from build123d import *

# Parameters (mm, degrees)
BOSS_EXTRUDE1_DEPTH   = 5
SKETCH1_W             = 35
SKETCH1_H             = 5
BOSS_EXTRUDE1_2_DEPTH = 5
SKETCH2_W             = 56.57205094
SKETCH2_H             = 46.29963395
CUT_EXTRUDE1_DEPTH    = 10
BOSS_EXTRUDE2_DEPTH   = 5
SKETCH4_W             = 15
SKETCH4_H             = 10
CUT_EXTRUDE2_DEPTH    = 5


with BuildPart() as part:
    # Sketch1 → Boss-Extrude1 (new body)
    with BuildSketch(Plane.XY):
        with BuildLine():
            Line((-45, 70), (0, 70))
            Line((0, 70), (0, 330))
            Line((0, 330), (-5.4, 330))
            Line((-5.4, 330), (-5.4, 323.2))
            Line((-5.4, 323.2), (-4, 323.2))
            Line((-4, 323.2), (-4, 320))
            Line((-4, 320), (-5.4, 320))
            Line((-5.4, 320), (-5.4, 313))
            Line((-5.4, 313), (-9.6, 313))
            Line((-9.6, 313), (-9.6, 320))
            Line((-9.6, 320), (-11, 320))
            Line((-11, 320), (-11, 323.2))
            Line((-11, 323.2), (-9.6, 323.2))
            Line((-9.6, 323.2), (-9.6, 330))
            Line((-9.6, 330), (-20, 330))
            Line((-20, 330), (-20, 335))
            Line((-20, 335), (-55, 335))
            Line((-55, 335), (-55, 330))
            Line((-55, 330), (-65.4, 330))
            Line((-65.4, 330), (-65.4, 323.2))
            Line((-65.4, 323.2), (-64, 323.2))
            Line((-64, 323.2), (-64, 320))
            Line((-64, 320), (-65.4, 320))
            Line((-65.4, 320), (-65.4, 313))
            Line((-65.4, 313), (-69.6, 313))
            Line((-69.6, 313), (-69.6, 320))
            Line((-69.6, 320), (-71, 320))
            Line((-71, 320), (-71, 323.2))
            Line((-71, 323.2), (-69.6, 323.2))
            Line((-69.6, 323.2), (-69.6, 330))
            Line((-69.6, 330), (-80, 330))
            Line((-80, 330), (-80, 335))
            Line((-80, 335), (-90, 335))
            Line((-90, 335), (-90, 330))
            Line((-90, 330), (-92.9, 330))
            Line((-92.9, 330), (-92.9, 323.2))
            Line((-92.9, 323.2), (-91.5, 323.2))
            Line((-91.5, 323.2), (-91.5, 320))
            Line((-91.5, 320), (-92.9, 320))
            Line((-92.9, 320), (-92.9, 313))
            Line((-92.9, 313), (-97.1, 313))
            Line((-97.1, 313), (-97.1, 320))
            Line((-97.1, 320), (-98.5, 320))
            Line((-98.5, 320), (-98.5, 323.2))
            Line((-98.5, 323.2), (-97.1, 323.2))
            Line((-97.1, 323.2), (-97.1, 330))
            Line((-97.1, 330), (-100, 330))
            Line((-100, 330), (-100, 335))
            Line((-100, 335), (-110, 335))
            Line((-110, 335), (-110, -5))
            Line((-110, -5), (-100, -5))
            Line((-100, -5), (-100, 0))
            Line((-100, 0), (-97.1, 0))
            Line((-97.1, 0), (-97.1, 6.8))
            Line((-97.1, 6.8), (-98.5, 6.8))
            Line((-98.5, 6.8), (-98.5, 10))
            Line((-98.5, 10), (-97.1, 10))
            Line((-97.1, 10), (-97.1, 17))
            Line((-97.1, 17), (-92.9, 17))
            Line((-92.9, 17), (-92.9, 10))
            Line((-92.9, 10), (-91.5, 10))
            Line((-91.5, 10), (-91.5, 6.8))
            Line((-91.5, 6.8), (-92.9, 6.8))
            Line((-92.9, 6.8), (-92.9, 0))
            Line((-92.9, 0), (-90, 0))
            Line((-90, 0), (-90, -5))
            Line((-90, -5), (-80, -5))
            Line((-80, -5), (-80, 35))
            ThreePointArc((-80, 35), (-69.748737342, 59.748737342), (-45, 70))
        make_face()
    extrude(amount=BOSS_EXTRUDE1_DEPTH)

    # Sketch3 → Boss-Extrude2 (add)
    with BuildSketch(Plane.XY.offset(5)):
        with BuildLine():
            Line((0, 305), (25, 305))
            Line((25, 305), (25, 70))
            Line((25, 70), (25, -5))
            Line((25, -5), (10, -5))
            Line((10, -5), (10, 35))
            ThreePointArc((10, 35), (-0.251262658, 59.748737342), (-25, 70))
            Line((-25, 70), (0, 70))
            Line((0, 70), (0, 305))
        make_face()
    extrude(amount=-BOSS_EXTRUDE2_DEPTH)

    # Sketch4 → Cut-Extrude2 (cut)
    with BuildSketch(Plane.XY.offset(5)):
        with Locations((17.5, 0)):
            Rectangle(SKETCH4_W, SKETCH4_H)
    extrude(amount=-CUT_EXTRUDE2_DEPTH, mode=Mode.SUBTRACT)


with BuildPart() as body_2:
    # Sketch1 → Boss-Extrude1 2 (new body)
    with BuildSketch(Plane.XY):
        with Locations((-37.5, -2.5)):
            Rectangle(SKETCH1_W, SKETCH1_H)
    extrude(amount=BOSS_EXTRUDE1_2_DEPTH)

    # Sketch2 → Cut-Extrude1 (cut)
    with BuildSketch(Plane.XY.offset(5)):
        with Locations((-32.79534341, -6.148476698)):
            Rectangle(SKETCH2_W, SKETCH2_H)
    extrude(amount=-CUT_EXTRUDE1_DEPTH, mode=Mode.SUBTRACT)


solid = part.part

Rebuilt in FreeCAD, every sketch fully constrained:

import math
import FreeCAD as App
import Part
import Sketcher
Q = App.Units.Quantity

doc = App.newDocument("Part")
body = doc.addObject("PartDesign::Body", "Body")

sketch1 = doc.addObject("Sketcher::SketchObject", "Sketch")
body.addObject(sketch1)
sketch1.AttachmentSupport = (doc.XY_Plane, [""])
sketch1.MapMode = "FlatFace"
sketch1.addGeometry(Part.LineSegment(App.Vector(-45, 70, 0), App.Vector(0, 70, 0)), False)
sketch1.addGeometry(Part.LineSegment(App.Vector(0, 70, 0), App.Vector(0, 330, 0)), False)
sketch1.addGeometry(Part.LineSegment(App.Vector(0, 330, 0), App.Vector(-5.4, 330, 0)), False)
sketch1.addGeometry(Part.LineSegment(App.Vector(-5.4, 330, 0), App.Vector(-5.4, 323.2, 0)), False)
sketch1.addGeometry(Part.LineSegment(App.Vector(-5.4, 323.2, 0), App.Vector(-4, 323.2, 0)), False)
sketch1.addGeometry(Part.LineSegment(App.Vector(-4, 323.2, 0), App.Vector(-4, 320, 0)), False)
sketch1.addGeometry(Part.LineSegment(App.Vector(-4, 320, 0), App.Vector(-5.4, 320, 0)), False)
sketch1.addGeometry(Part.LineSegment(App.Vector(-5.4, 320, 0), App.Vector(-5.4, 313, 0)), False)
sketch1.addGeometry(Part.LineSegment(App.Vector(-5.4, 313, 0), App.Vector(-9.6, 313, 0)), False)
sketch1.addGeometry(Part.LineSegment(App.Vector(-9.6, 313, 0), App.Vector(-9.6, 320, 0)), False)
sketch1.addGeometry(Part.LineSegment(App.Vector(-9.6, 320, 0), App.Vector(-11, 320, 0)), False)
sketch1.addGeometry(Part.LineSegment(App.Vector(-11, 320, 0), App.Vector(-11, 323.2, 0)), False)
sketch1.addGeometry(Part.LineSegment(App.Vector(-11, 323.2, 0), App.Vector(-9.6, 323.2, 0)), False)
sketch1.addGeometry(Part.LineSegment(App.Vector(-9.6, 323.2, 0), App.Vector(-9.6, 330, 0)), False)
sketch1.addGeometry(Part.LineSegment(App.Vector(-9.6, 330, 0), App.Vector(-20, 330, 0)), False)
sketch1.addGeometry(Part.LineSegment(App.Vector(-20, 330, 0), App.Vector(-20, 335, 0)), False)
sketch1.addGeometry(Part.LineSegment(App.Vector(-20, 335, 0), App.Vector(-55, 335, 0)), False)
sketch1.addGeometry(Part.LineSegment(App.Vector(-55, 335, 0), App.Vector(-55, 330, 0)), False)
sketch1.addGeometry(Part.LineSegment(App.Vector(-55, 330, 0), App.Vector(-65.4, 330, 0)), False)
sketch1.addGeometry(Part.LineSegment(App.Vector(-65.4, 330, 0), App.Vector(-65.4, 323.2, 0)), False)
sketch1.addGeometry(Part.LineSegment(App.Vector(-65.4, 323.2, 0), App.Vector(-64, 323.2, 0)), False)
sketch1.addGeometry(Part.LineSegment(App.Vector(-64, 323.2, 0), App.Vector(-64, 320, 0)), False)
sketch1.addGeometry(Part.LineSegment(App.Vector(-64, 320, 0), App.Vector(-65.4, 320, 0)), False)
sketch1.addGeometry(Part.LineSegment(App.Vector(-65.4, 320, 0), App.Vector(-65.4, 313, 0)), False)
sketch1.addGeometry(Part.LineSegment(App.Vector(-65.4, 313, 0), App.Vector(-69.6, 313, 0)), False)
sketch1.addGeometry(Part.LineSegment(App.Vector(-69.6, 313, 0), App.Vector(-69.6, 320, 0)), False)
sketch1.addGeometry(Part.LineSegment(App.Vector(-69.6, 320, 0), App.Vector(-71, 320, 0)), False)
sketch1.addGeometry(Part.LineSegment(App.Vector(-71, 320, 0), App.Vector(-71, 323.2, 0)), False)
sketch1.addGeometry(Part.LineSegment(App.Vector(-71, 323.2, 0), App.Vector(-69.6, 323.2, 0)), False)
sketch1.addGeometry(Part.LineSegment(App.Vector(-69.6, 323.2, 0), App.Vector(-69.6, 330, 0)), False)
sketch1.addGeometry(Part.LineSegment(App.Vector(-69.6, 330, 0), App.Vector(-80, 330, 0)), False)
sketch1.addGeometry(Part.LineSegment(App.Vector(-80, 330, 0), App.Vector(-80, 335, 0)), False)
sketch1.addGeometry(Part.LineSegment(App.Vector(-80, 335, 0), App.Vector(-90, 335, 0)), False)
sketch1.addGeometry(Part.LineSegment(App.Vector(-90, 335, 0), App.Vector(-90, 330, 0)), False)
sketch1.addGeometry(Part.LineSegment(App.Vector(-90, 330, 0), App.Vector(-92.9, 330, 0)), False)
sketch1.addGeometry(Part.LineSegment(App.Vector(-92.9, 330, 0), App.Vector(-92.9, 323.2, 0)), False)
sketch1.addGeometry(Part.LineSegment(App.Vector(-92.9, 323.2, 0), App.Vector(-91.5, 323.2, 0)), False)
sketch1.addGeometry(Part.LineSegment(App.Vector(-91.5, 323.2, 0), App.Vector(-91.5, 320, 0)), False)
sketch1.addGeometry(Part.LineSegment(App.Vector(-91.5, 320, 0), App.Vector(-92.9, 320, 0)), False)
sketch1.addGeometry(Part.LineSegment(App.Vector(-92.9, 320, 0), App.Vector(-92.9, 313, 0)), False)
sketch1.addGeometry(Part.LineSegment(App.Vector(-92.9, 313, 0), App.Vector(-97.1, 313, 0)), False)
sketch1.addGeometry(Part.LineSegment(App.Vector(-97.1, 313, 0), App.Vector(-97.1, 320, 0)), False)
sketch1.addGeometry(Part.LineSegment(App.Vector(-97.1, 320, 0), App.Vector(-98.5, 320, 0)), False)
sketch1.addGeometry(Part.LineSegment(App.Vector(-98.5, 320, 0), App.Vector(-98.5, 323.2, 0)), False)
sketch1.addGeometry(Part.LineSegment(App.Vector(-98.5, 323.2, 0), App.Vector(-97.1, 323.2, 0)), False)
sketch1.addGeometry(Part.LineSegment(App.Vector(-97.1, 323.2, 0), App.Vector(-97.1, 330, 0)), False)
sketch1.addGeometry(Part.LineSegment(App.Vector(-97.1, 330, 0), App.Vector(-100, 330, 0)), False)
sketch1.addGeometry(Part.LineSegment(App.Vector(-100, 330, 0), App.Vector(-100, 335, 0)), False)
sketch1.addGeometry(Part.LineSegment(App.Vector(-100, 335, 0), App.Vector(-110, 335, 0)), False)
sketch1.addGeometry(Part.LineSegment(App.Vector(-110, 335, 0), App.Vector(-110, -5, 0)), False)
sketch1.addGeometry(Part.LineSegment(App.Vector(-110, -5, 0), App.Vector(-100, -5, 0)), False)
sketch1.addGeometry(Part.LineSegment(App.Vector(-100, -5, 0), App.Vector(-100, 0, 0)), False)
sketch1.addGeometry(Part.LineSegment(App.Vector(-100, 0, 0), App.Vector(-97.1, 0, 0)), False)
sketch1.addGeometry(Part.LineSegment(App.Vector(-97.1, 0, 0), App.Vector(-97.1, 6.8, 0)), False)
sketch1.addGeometry(Part.LineSegment(App.Vector(-97.1, 6.8, 0), App.Vector(-98.5, 6.8, 0)), False)
sketch1.addGeometry(Part.LineSegment(App.Vector(-98.5, 6.8, 0), App.Vector(-98.5, 10, 0)), False)
sketch1.addGeometry(Part.LineSegment(App.Vector(-98.5, 10, 0), App.Vector(-97.1, 10, 0)), False)
sketch1.addGeometry(Part.LineSegment(App.Vector(-97.1, 10, 0), App.Vector(-97.1, 17, 0)), False)
sketch1.addGeometry(Part.LineSegment(App.Vector(-97.1, 17, 0), App.Vector(-92.9, 17, 0)), False)
sketch1.addGeometry(Part.LineSegment(App.Vector(-92.9, 17, 0), App.Vector(-92.9, 10, 0)), False)
sketch1.addGeometry(Part.LineSegment(App.Vector(-92.9, 10, 0), App.Vector(-91.5, 10, 0)), False)
sketch1.addGeometry(Part.LineSegment(App.Vector(-91.5, 10, 0), App.Vector(-91.5, 6.8, 0)), False)
sketch1.addGeometry(Part.LineSegment(App.Vector(-91.5, 6.8, 0), App.Vector(-92.9, 6.8, 0)), False)
sketch1.addGeometry(Part.LineSegment(App.Vector(-92.9, 6.8, 0), App.Vector(-92.9, 0, 0)), False)
sketch1.addGeometry(Part.LineSegment(App.Vector(-92.9, 0, 0), App.Vector(-90, 0, 0)), False)
sketch1.addGeometry(Part.LineSegment(App.Vector(-90, 0, 0), App.Vector(-90, -5, 0)), False)
sketch1.addGeometry(Part.LineSegment(App.Vector(-90, -5, 0), App.Vector(-80, -5, 0)), False)
sketch1.addGeometry(Part.LineSegment(App.Vector(-80, -5, 0), App.Vector(-80, 35, 0)), False)
sketch1.addGeometry(Part.ArcOfCircle(Part.Circle(App.Vector(-45, 35, 0), App.Vector(0, 0, 1), 35), math.radians(90), math.radians(180)), False)
sketch1.addConstraint(Sketcher.Constraint("Coincident", 0, 2, 1, 1))
sketch1.addConstraint(Sketcher.Constraint("Coincident", 1, 2, 2, 1))
sketch1.addConstraint(Sketcher.Constraint("Coincident", 2, 2, 3, 1))
sketch1.addConstraint(Sketcher.Constraint("Coincident", 3, 2, 4, 1))
sketch1.addConstraint(Sketcher.Constraint("Coincident", 4, 2, 5, 1))
sketch1.addConstraint(Sketcher.Constraint("Coincident", 5, 2, 6, 1))
sketch1.addConstraint(Sketcher.Constraint("Coincident", 6, 2, 7, 1))
sketch1.addConstraint(Sketcher.Constraint("Coincident", 7, 2, 8, 1))
sketch1.addConstraint(Sketcher.Constraint("Coincident", 8, 2, 9, 1))
sketch1.addConstraint(Sketcher.Constraint("Coincident", 9, 2, 10, 1))
sketch1.addConstraint(Sketcher.Constraint("Coincident", 10, 2, 11, 1))
sketch1.addConstraint(Sketcher.Constraint("Coincident", 11, 2, 12, 1))
sketch1.addConstraint(Sketcher.Constraint("Coincident", 12, 2, 13, 1))
sketch1.addConstraint(Sketcher.Constraint("Coincident", 13, 2, 14, 1))
sketch1.addConstraint(Sketcher.Constraint("Coincident", 14, 2, 15, 1))
sketch1.addConstraint(Sketcher.Constraint("Coincident", 15, 2, 16, 1))
sketch1.addConstraint(Sketcher.Constraint("Coincident", 16, 2, 17, 1))
sketch1.addConstraint(Sketcher.Constraint("Coincident", 17, 2, 18, 1))
sketch1.addConstraint(Sketcher.Constraint("Coincident", 18, 2, 19, 1))
sketch1.addConstraint(Sketcher.Constraint("Coincident", 19, 2, 20, 1))
sketch1.addConstraint(Sketcher.Constraint("Coincident", 20, 2, 21, 1))
sketch1.addConstraint(Sketcher.Constraint("Coincident", 21, 2, 22, 1))
sketch1.addConstraint(Sketcher.Constraint("Coincident", 22, 2, 23, 1))
sketch1.addConstraint(Sketcher.Constraint("Coincident", 23, 2, 24, 1))
sketch1.addConstraint(Sketcher.Constraint("Coincident", 24, 2, 25, 1))
sketch1.addConstraint(Sketcher.Constraint("Coincident", 25, 2, 26, 1))
sketch1.addConstraint(Sketcher.Constraint("Coincident", 26, 2, 27, 1))
sketch1.addConstraint(Sketcher.Constraint("Coincident", 27, 2, 28, 1))
sketch1.addConstraint(Sketcher.Constraint("Coincident", 28, 2, 29, 1))
sketch1.addConstraint(Sketcher.Constraint("Coincident", 29, 2, 30, 1))
sketch1.addConstraint(Sketcher.Constraint("Coincident", 30, 2, 31, 1))
sketch1.addConstraint(Sketcher.Constraint("Coincident", 31, 2, 32, 1))
sketch1.addConstraint(Sketcher.Constraint("Coincident", 32, 2, 33, 1))
sketch1.addConstraint(Sketcher.Constraint("Coincident", 33, 2, 34, 1))
sketch1.addConstraint(Sketcher.Constraint("Coincident", 34, 2, 35, 1))
sketch1.addConstraint(Sketcher.Constraint("Coincident", 35, 2, 36, 1))
sketch1.addConstraint(Sketcher.Constraint("Coincident", 36, 2, 37, 1))
sketch1.addConstraint(Sketcher.Constraint("Coincident", 37, 2, 38, 1))
sketch1.addConstraint(Sketcher.Constraint("Coincident", 38, 2, 39, 1))
sketch1.addConstraint(Sketcher.Constraint("Coincident", 39, 2, 40, 1))
sketch1.addConstraint(Sketcher.Constraint("Coincident", 40, 2, 41, 1))
sketch1.addConstraint(Sketcher.Constraint("Coincident", 41, 2, 42, 1))
sketch1.addConstraint(Sketcher.Constraint("Coincident", 42, 2, 43, 1))
sketch1.addConstraint(Sketcher.Constraint("Coincident", 43, 2, 44, 1))
sketch1.addConstraint(Sketcher.Constraint("Coincident", 44, 2, 45, 1))
sketch1.addConstraint(Sketcher.Constraint("Coincident", 45, 2, 46, 1))
sketch1.addConstraint(Sketcher.Constraint("Coincident", 46, 2, 47, 1))
sketch1.addConstraint(Sketcher.Constraint("Coincident", 47, 2, 48, 1))
sketch1.addConstraint(Sketcher.Constraint("Coincident", 48, 2, 49, 1))
sketch1.addConstraint(Sketcher.Constraint("Coincident", 49, 2, 50, 1))
sketch1.addConstraint(Sketcher.Constraint("Coincident", 50, 2, 51, 1))
sketch1.addConstraint(Sketcher.Constraint("Coincident", 51, 2, 52, 1))
sketch1.addConstraint(Sketcher.Constraint("Coincident", 52, 2, 53, 1))
sketch1.addConstraint(Sketcher.Constraint("Coincident", 53, 2, 54, 1))
sketch1.addConstraint(Sketcher.Constraint("Coincident", 54, 2, 55, 1))
sketch1.addConstraint(Sketcher.Constraint("Coincident", 55, 2, 56, 1))
sketch1.addConstraint(Sketcher.Constraint("Coincident", 56, 2, 57, 1))
sketch1.addConstraint(Sketcher.Constraint("Coincident", 57, 2, 58, 1))
sketch1.addConstraint(Sketcher.Constraint("Coincident", 58, 2, 59, 1))
sketch1.addConstraint(Sketcher.Constraint("Coincident", 59, 2, 60, 1))
sketch1.addConstraint(Sketcher.Constraint("Coincident", 60, 2, 61, 1))
sketch1.addConstraint(Sketcher.Constraint("Coincident", 61, 2, 62, 1))
sketch1.addConstraint(Sketcher.Constraint("Coincident", 62, 2, 63, 1))
sketch1.addConstraint(Sketcher.Constraint("Coincident", 63, 2, 64, 1))
sketch1.addConstraint(Sketcher.Constraint("Coincident", 64, 2, 65, 1))
sketch1.addConstraint(Sketcher.Constraint("Coincident", 65, 2, 66, 1))
sketch1.addConstraint(Sketcher.Constraint("Coincident", 66, 2, 67, 1))
sketch1.addConstraint(Sketcher.Constraint("Tangent", 67, 2, 68, 2))
sketch1.addConstraint(Sketcher.Constraint("Tangent", 68, 1, 0, 1))
sketch1.addConstraint(Sketcher.Constraint("Horizontal", 0))
sketch1.addConstraint(Sketcher.Constraint("Vertical", 1))
sketch1.addConstraint(Sketcher.Constraint("Horizontal", 2))
sketch1.addConstraint(Sketcher.Constraint("Vertical", 3))
sketch1.addConstraint(Sketcher.Constraint("Horizontal", 4))
sketch1.addConstraint(Sketcher.Constraint("Vertical", 5))
sketch1.addConstraint(Sketcher.Constraint("Horizontal", 6))
sketch1.addConstraint(Sketcher.Constraint("Vertical", 7))
sketch1.addConstraint(Sketcher.Constraint("Horizontal", 8))
sketch1.addConstraint(Sketcher.Constraint("Vertical", 9))
sketch1.addConstraint(Sketcher.Constraint("Horizontal", 10))
sketch1.addConstraint(Sketcher.Constraint("Vertical", 11))
sketch1.addConstraint(Sketcher.Constraint("Horizontal", 12))
sketch1.addConstraint(Sketcher.Constraint("Vertical", 13))
sketch1.addConstraint(Sketcher.Constraint("Horizontal", 14))
sketch1.addConstraint(Sketcher.Constraint("Vertical", 15))
sketch1.addConstraint(Sketcher.Constraint("Horizontal", 16))
sketch1.addConstraint(Sketcher.Constraint("Vertical", 17))
sketch1.addConstraint(Sketcher.Constraint("Horizontal", 18))
sketch1.addConstraint(Sketcher.Constraint("Vertical", 19))
sketch1.addConstraint(Sketcher.Constraint("Horizontal", 20))
sketch1.addConstraint(Sketcher.Constraint("Vertical", 21))
sketch1.addConstraint(Sketcher.Constraint("Horizontal", 22))
sketch1.addConstraint(Sketcher.Constraint("Vertical", 23))
sketch1.addConstraint(Sketcher.Constraint("Horizontal", 24))
sketch1.addConstraint(Sketcher.Constraint("Vertical", 25))
sketch1.addConstraint(Sketcher.Constraint("Horizontal", 26))
sketch1.addConstraint(Sketcher.Constraint("Vertical", 27))
sketch1.addConstraint(Sketcher.Constraint("Horizontal", 28))
sketch1.addConstraint(Sketcher.Constraint("Vertical", 29))
sketch1.addConstraint(Sketcher.Constraint("Horizontal", 30))
sketch1.addConstraint(Sketcher.Constraint("Vertical", 31))
sketch1.addConstraint(Sketcher.Constraint("Horizontal", 32))
sketch1.addConstraint(Sketcher.Constraint("Vertical", 33))
sketch1.addConstraint(Sketcher.Constraint("Horizontal", 34))
sketch1.addConstraint(Sketcher.Constraint("Vertical", 35))
sketch1.addConstraint(Sketcher.Constraint("Horizontal", 36))
sketch1.addConstraint(Sketcher.Constraint("Vertical", 37))
sketch1.addConstraint(Sketcher.Constraint("Horizontal", 38))
sketch1.addConstraint(Sketcher.Constraint("Vertical", 39))
sketch1.addConstraint(Sketcher.Constraint("Horizontal", 40))
sketch1.addConstraint(Sketcher.Constraint("Vertical", 41))
sketch1.addConstraint(Sketcher.Constraint("Horizontal", 42))
sketch1.addConstraint(Sketcher.Constraint("Vertical", 43))
sketch1.addConstraint(Sketcher.Constraint("Horizontal", 44))
sketch1.addConstraint(Sketcher.Constraint("Vertical", 45))
sketch1.addConstraint(Sketcher.Constraint("Horizontal", 46))
sketch1.addConstraint(Sketcher.Constraint("Vertical", 47))
sketch1.addConstraint(Sketcher.Constraint("Horizontal", 48))
sketch1.addConstraint(Sketcher.Constraint("Vertical", 49))
sketch1.addConstraint(Sketcher.Constraint("Horizontal", 50))
sketch1.addConstraint(Sketcher.Constraint("Vertical", 51))
sketch1.addConstraint(Sketcher.Constraint("Horizontal", 52))
sketch1.addConstraint(Sketcher.Constraint("Vertical", 53))
sketch1.addConstraint(Sketcher.Constraint("Horizontal", 54))
sketch1.addConstraint(Sketcher.Constraint("Vertical", 55))
sketch1.addConstraint(Sketcher.Constraint("Horizontal", 56))
sketch1.addConstraint(Sketcher.Constraint("Vertical", 57))
sketch1.addConstraint(Sketcher.Constraint("Horizontal", 58))
sketch1.addConstraint(Sketcher.Constraint("Vertical", 59))
sketch1.addConstraint(Sketcher.Constraint("Horizontal", 60))
sketch1.addConstraint(Sketcher.Constraint("Vertical", 61))
sketch1.addConstraint(Sketcher.Constraint("Horizontal", 62))
sketch1.addConstraint(Sketcher.Constraint("Vertical", 63))
sketch1.addConstraint(Sketcher.Constraint("Horizontal", 64))
sketch1.addConstraint(Sketcher.Constraint("Vertical", 65))
sketch1.addConstraint(Sketcher.Constraint("Horizontal", 66))
sketch1.addConstraint(Sketcher.Constraint("Vertical", 67))
sketch1.addConstraint(Sketcher.Constraint("PointOnObject", 0, 2, -2))
sketch1.addConstraint(Sketcher.Constraint("PointOnObject", 51, 2, -1))
sketch1.addConstraint(Sketcher.Constraint("PointOnObject", 63, 2, -1))
sketch1.addConstraint(Sketcher.Constraint("Horizontal", 6, 2, 9, 2))
sketch1.addConstraint(Sketcher.Constraint("Horizontal", 4, 2, 11, 2))
sketch1.addConstraint(Sketcher.Constraint("Horizontal", 2, 2, 13, 2))
sketch1.addConstraint(Sketcher.Constraint("Horizontal", 14, 2, 17, 2))
sketch1.addConstraint(Sketcher.Constraint("Horizontal", 12, 2, 19, 2))
sketch1.addConstraint(Sketcher.Constraint("Horizontal", 10, 2, 21, 2))
sketch1.addConstraint(Sketcher.Constraint("Horizontal", 8, 2, 23, 2))
sketch1.addConstraint(Sketcher.Constraint("Horizontal", 22, 2, 25, 2))
sketch1.addConstraint(Sketcher.Constraint("Horizontal", 20, 2, 27, 2))
sketch1.addConstraint(Sketcher.Constraint("Horizontal", 18, 2, 29, 2))
sketch1.addConstraint(Sketcher.Constraint("Horizontal", 16, 2, 31, 2))
sketch1.addConstraint(Sketcher.Constraint("Horizontal", 30, 2, 33, 2))
sketch1.addConstraint(Sketcher.Constraint("Horizontal", 28, 2, 35, 2))
sketch1.addConstraint(Sketcher.Constraint("Horizontal", 26, 2, 37, 2))
sketch1.addConstraint(Sketcher.Constraint("Horizontal", 24, 2, 39, 2))
sketch1.addConstraint(Sketcher.Constraint("Horizontal", 38, 2, 41, 2))
sketch1.addConstraint(Sketcher.Constraint("Horizontal", 36, 2, 43, 2))
sketch1.addConstraint(Sketcher.Constraint("Horizontal", 34, 2, 45, 2))
sketch1.addConstraint(Sketcher.Constraint("Horizontal", 32, 2, 47, 2))
sketch1.addConstraint(Sketcher.Constraint("Horizontal", 56, 2, 59, 2))
sketch1.addConstraint(Sketcher.Constraint("Horizontal", 54, 2, 61, 2))
sketch1.addConstraint(Sketcher.Constraint("Horizontal", 50, 2, 65, 2))
sketch1.addConstraint(Sketcher.Constraint("Vertical", 3, 2, 6, 2))
sketch1.addConstraint(Sketcher.Constraint("Vertical", 9, 2, 12, 2))
sketch1.addConstraint(Sketcher.Constraint("Vertical", 19, 2, 22, 2))
sketch1.addConstraint(Sketcher.Constraint("Vertical", 25, 2, 28, 2))
sketch1.addConstraint(Sketcher.Constraint("Vertical", 35, 2, 38, 2))
sketch1.addConstraint(Sketcher.Constraint("Vertical", 41, 2, 44, 2))
sketch1.addConstraint(Sketcher.Constraint("Vertical", 47, 2, 50, 2))
sketch1.addConstraint(Sketcher.Constraint("Vertical", 45, 2, 52, 2))
sketch1.addConstraint(Sketcher.Constraint("Vertical", 43, 2, 54, 2))
sketch1.addConstraint(Sketcher.Constraint("Vertical", 53, 2, 56, 2))
sketch1.addConstraint(Sketcher.Constraint("Vertical", 39, 2, 58, 2))
sketch1.addConstraint(Sketcher.Constraint("Vertical", 37, 2, 60, 2))
sketch1.addConstraint(Sketcher.Constraint("Vertical", 59, 2, 62, 2))
sketch1.addConstraint(Sketcher.Constraint("Vertical", 33, 2, 64, 2))
sketch1.addConstraint(Sketcher.Constraint("Vertical", 31, 2, 66, 2))
sketch1.addConstraint(Sketcher.Constraint("Equal", 6, 10))
sketch1.addConstraint(Sketcher.Constraint("Equal", 14, 18))
sketch1.addConstraint(Sketcher.Constraint("Equal", 12, 20))
sketch1.addConstraint(Sketcher.Constraint("Equal", 8, 24))
sketch1.addConstraint(Sketcher.Constraint("Equal", 22, 26))
sketch1.addConstraint(Sketcher.Constraint("Equal", 18, 30))
sketch1.addConstraint(Sketcher.Constraint("Equal", 28, 36))
sketch1.addConstraint(Sketcher.Constraint("Equal", 24, 40))
sketch1.addConstraint(Sketcher.Constraint("Equal", 38, 42))
sketch1.addConstraint(Sketcher.Constraint("Equal", 34, 46))
sketch1.addConstraint(Sketcher.Constraint("Equal", 32, 48))
sketch1.addConstraint(Sketcher.Constraint("Equal", 47, 51))
sketch1.addConstraint(Sketcher.Constraint("Equal", 45, 53))
sketch1.addConstraint(Sketcher.Constraint("Equal", 43, 55))
sketch1.addConstraint(Sketcher.Constraint("Equal", 41, 57))
sketch1.addConstraint(Sketcher.Constraint("Radius", 68, Q("35 mm")))
sketch1.addConstraint(Sketcher.Constraint("DistanceX", 0, 1, 0, 2, Q("45 mm")))
sketch1.addConstraint(Sketcher.Constraint("DistanceX", 16, 2, 16, 1, Q("35 mm")))
sketch1.addConstraint(Sketcher.Constraint("DistanceX", 32, 2, 32, 1, Q("10 mm")))
sketch1.addConstraint(Sketcher.Constraint("DistanceY", 1, 1, 1, 2, Q("260 mm")))
sketch1.addConstraint(Sketcher.Constraint("DistanceY", 7, 2, 7, 1, Q("7 mm")))
sketch1.addConstraint(Sketcher.Constraint("DistanceY", 15, 1, 15, 2, Q("5 mm")))
sketch1.addConstraint(Sketcher.Constraint("DistanceY", 49, 2, 49, 1, Q("340 mm")))
sketch1.addConstraint(Sketcher.Constraint("DistanceX", 2, 2, 2, 1, Q("5.4 mm")))
sketch1.addConstraint(Sketcher.Constraint("DistanceX", 4, 1, 4, 2, Q("1.4 mm")))
sketch1.addConstraint(Sketcher.Constraint("DistanceX", 8, 2, 8, 1, Q("4.2 mm")))
sketch1.addConstraint(Sketcher.Constraint("DistanceX", 34, 2, 34, 1, Q("2.9 mm")))
sketch1.addConstraint(Sketcher.Constraint("DistanceY", 3, 2, 3, 1, Q("6.8 mm")))
sketch1.addConstraint(Sketcher.Constraint("DistanceY", 5, 2, 5, 1, Q("3.2 mm")))
pad1 = doc.addObject("PartDesign::Pad", "Pad")
body.addObject(pad1)
pad1.Profile = sketch1
pad1.Length = 5

sketch2 = doc.addObject("Sketcher::SketchObject", "Sketch001")
body.addObject(sketch2)
sketch2.AttachmentSupport = (doc.XY_Plane, [""])
sketch2.MapMode = "FlatFace"
sketch2.AttachmentOffset = App.Placement(App.Vector(0, 0, 5), App.Rotation())
sketch2.addGeometry(Part.LineSegment(App.Vector(25, 305, 0), App.Vector(0, 305, 0)), False)
sketch2.addGeometry(Part.LineSegment(App.Vector(0, 305, 0), App.Vector(0, 70, 0)), False)
sketch2.addGeometry(Part.LineSegment(App.Vector(0, 70, 0), App.Vector(-25, 70, 0)), False)
sketch2.addGeometry(Part.ArcOfCircle(Part.Circle(App.Vector(-25, 35, 0), App.Vector(0, 0, 1), 35), math.radians(0), math.radians(90)), False)
sketch2.addGeometry(Part.LineSegment(App.Vector(10, 35, 0), App.Vector(10, -5, 0)), False)
sketch2.addGeometry(Part.LineSegment(App.Vector(10, -5, 0), App.Vector(25, -5, 0)), False)
sketch2.addGeometry(Part.LineSegment(App.Vector(25, -5, 0), App.Vector(25, 305, 0)), False)
sketch2.addConstraint(Sketcher.Constraint("Coincident", 0, 2, 1, 1))
sketch2.addConstraint(Sketcher.Constraint("Coincident", 1, 2, 2, 1))
sketch2.addConstraint(Sketcher.Constraint("Tangent", 2, 2, 3, 2))
sketch2.addConstraint(Sketcher.Constraint("Tangent", 3, 1, 4, 1))
sketch2.addConstraint(Sketcher.Constraint("Coincident", 4, 2, 5, 1))
sketch2.addConstraint(Sketcher.Constraint("Coincident", 5, 2, 6, 1))
sketch2.addConstraint(Sketcher.Constraint("Coincident", 6, 2, 0, 1))
sketch2.addConstraint(Sketcher.Constraint("Horizontal", 0))
sketch2.addConstraint(Sketcher.Constraint("Vertical", 1))
sketch2.addConstraint(Sketcher.Constraint("Horizontal", 2))
sketch2.addConstraint(Sketcher.Constraint("Vertical", 4))
sketch2.addConstraint(Sketcher.Constraint("Horizontal", 5))
sketch2.addConstraint(Sketcher.Constraint("Vertical", 6))
sketch2.addConstraint(Sketcher.Constraint("PointOnObject", 0, 2, -2))
sketch2.addConstraint(Sketcher.Constraint("Equal", 0, 2))
sketch2.addConstraint(Sketcher.Constraint("Radius", 3, Q("35 mm")))
sketch2.addConstraint(Sketcher.Constraint("DistanceX", 0, 2, 0, 1, Q("25 mm")))
sketch2.addConstraint(Sketcher.Constraint("DistanceY", 1, 2, 1, 1, Q("235 mm")))
sketch2.addConstraint(Sketcher.Constraint("DistanceY", 4, 2, 4, 1, Q("40 mm")))
sketch2.addConstraint(Sketcher.Constraint("DistanceY", -1, 1, 3, 3, Q("35 mm")))
pad2 = doc.addObject("PartDesign::Pad", "Pad001")
body.addObject(pad2)
pad2.Profile = sketch2
pad2.Length = 5
pad2.Reversed = True

sketch3 = doc.addObject("Sketcher::SketchObject", "Sketch002")
body.addObject(sketch3)
sketch3.AttachmentSupport = (doc.XY_Plane, [""])
sketch3.MapMode = "FlatFace"
sketch3.AttachmentOffset = App.Placement(App.Vector(0, 0, 5), App.Rotation())
sketch3.addGeometry(Part.LineSegment(App.Vector(10, 5, 0), App.Vector(10, -5, 0)), False)
sketch3.addGeometry(Part.LineSegment(App.Vector(10, -5, 0), App.Vector(25, -5, 0)), False)
sketch3.addGeometry(Part.LineSegment(App.Vector(25, -5, 0), App.Vector(25, 5, 0)), False)
sketch3.addGeometry(Part.LineSegment(App.Vector(25, 5, 0), App.Vector(10, 5, 0)), False)
sketch3.addConstraint(Sketcher.Constraint("Coincident", 0, 2, 1, 1))
sketch3.addConstraint(Sketcher.Constraint("Coincident", 1, 2, 2, 1))
sketch3.addConstraint(Sketcher.Constraint("Coincident", 2, 2, 3, 1))
sketch3.addConstraint(Sketcher.Constraint("Coincident", 3, 2, 0, 1))
sketch3.addConstraint(Sketcher.Constraint("Vertical", 0))
sketch3.addConstraint(Sketcher.Constraint("Horizontal", 1))
sketch3.addConstraint(Sketcher.Constraint("Vertical", 2))
sketch3.addConstraint(Sketcher.Constraint("Horizontal", 3))
sketch3.addConstraint(Sketcher.Constraint("DistanceX", 1, 1, 1, 2, Q("15 mm")))
sketch3.addConstraint(Sketcher.Constraint("DistanceY", 0, 2, 0, 1, Q("10 mm")))
sketch3.addConstraint(Sketcher.Constraint("DistanceX", -1, 1, 0, 2, Q("10 mm")))
sketch3.addConstraint(Sketcher.Constraint("DistanceY", 0, 2, -1, 1, Q("5 mm")))
pocket1 = doc.addObject("PartDesign::Pocket", "Pocket")
body.addObject(pocket1)
pocket1.Profile = sketch3
pocket1.Length = 5
body2 = doc.addObject("PartDesign::Body", "Body001")

sketch4 = doc.addObject("Sketcher::SketchObject", "Sketch003")
body2.addObject(sketch4)
sketch4.AttachmentSupport = (doc.getObject("XY_Plane001"), [""])
sketch4.MapMode = "FlatFace"
sketch4.addGeometry(Part.LineSegment(App.Vector(-55, 0, 0), App.Vector(-55, -5, 0)), False)
sketch4.addGeometry(Part.LineSegment(App.Vector(-55, -5, 0), App.Vector(-20, -5, 0)), False)
sketch4.addGeometry(Part.LineSegment(App.Vector(-20, -5, 0), App.Vector(-20, 0, 0)), False)
sketch4.addGeometry(Part.LineSegment(App.Vector(-20, 0, 0), App.Vector(-55, 0, 0)), False)
sketch4.addConstraint(Sketcher.Constraint("Coincident", 0, 2, 1, 1))
sketch4.addConstraint(Sketcher.Constraint("Coincident", 1, 2, 2, 1))
sketch4.addConstraint(Sketcher.Constraint("Coincident", 2, 2, 3, 1))
sketch4.addConstraint(Sketcher.Constraint("Coincident", 3, 2, 0, 1))
sketch4.addConstraint(Sketcher.Constraint("Vertical", 0))
sketch4.addConstraint(Sketcher.Constraint("Horizontal", 1))
sketch4.addConstraint(Sketcher.Constraint("Vertical", 2))
sketch4.addConstraint(Sketcher.Constraint("Horizontal", 3))
sketch4.addConstraint(Sketcher.Constraint("PointOnObject", 2, 2, -1))
sketch4.addConstraint(Sketcher.Constraint("DistanceX", 1, 1, 1, 2, Q("35 mm")))
sketch4.addConstraint(Sketcher.Constraint("DistanceY", 0, 2, 0, 1, Q("5 mm")))
sketch4.addConstraint(Sketcher.Constraint("DistanceX", 0, 2, -1, 1, Q("55 mm")))
pad3 = doc.addObject("PartDesign::Pad", "Pad002")
body2.addObject(pad3)
pad3.Profile = sketch4
pad3.Length = 5

sketch5 = doc.addObject("Sketcher::SketchObject", "Sketch004")
body2.addObject(sketch5)
sketch5.AttachmentSupport = (doc.getObject("XY_Plane001"), [""])
sketch5.MapMode = "FlatFace"
sketch5.AttachmentOffset = App.Placement(App.Vector(0, 0, 5), App.Rotation())
sketch5.addGeometry(Part.LineSegment(App.Vector(-61, 17, 0), App.Vector(-61, -29, 0)), False)
sketch5.addGeometry(Part.LineSegment(App.Vector(-61, -29, 0), App.Vector(-5, -29, 0)), False)
sketch5.addGeometry(Part.LineSegment(App.Vector(-5, -29, 0), App.Vector(-5, 17, 0)), False)
sketch5.addGeometry(Part.LineSegment(App.Vector(-5, 17, 0), App.Vector(-61, 17, 0)), False)
sketch5.addConstraint(Sketcher.Constraint("Coincident", 0, 2, 1, 1))
sketch5.addConstraint(Sketcher.Constraint("Coincident", 1, 2, 2, 1))
sketch5.addConstraint(Sketcher.Constraint("Coincident", 2, 2, 3, 1))
sketch5.addConstraint(Sketcher.Constraint("Coincident", 3, 2, 0, 1))
sketch5.addConstraint(Sketcher.Constraint("Vertical", 0))
sketch5.addConstraint(Sketcher.Constraint("Horizontal", 1))
sketch5.addConstraint(Sketcher.Constraint("Vertical", 2))
sketch5.addConstraint(Sketcher.Constraint("Horizontal", 3))
sketch5.addConstraint(Sketcher.Constraint("DistanceX", 1, 1, 1, 2, Q("56.572051 mm")))
sketch5.addConstraint(Sketcher.Constraint("DistanceY", 0, 2, 0, 1, Q("46.299634 mm")))
sketch5.addConstraint(Sketcher.Constraint("DistanceX", 0, 2, -1, 1, Q("61.081369 mm")))
sketch5.addConstraint(Sketcher.Constraint("DistanceY", -1, 1, 2, 2, Q("17.00134 mm")))
pocket2 = doc.addObject("PartDesign::Pocket", "Pocket001")
body2.addObject(pocket2)
pocket2.Profile = sketch5
pocket2.Length = 10

doc.recompute()
